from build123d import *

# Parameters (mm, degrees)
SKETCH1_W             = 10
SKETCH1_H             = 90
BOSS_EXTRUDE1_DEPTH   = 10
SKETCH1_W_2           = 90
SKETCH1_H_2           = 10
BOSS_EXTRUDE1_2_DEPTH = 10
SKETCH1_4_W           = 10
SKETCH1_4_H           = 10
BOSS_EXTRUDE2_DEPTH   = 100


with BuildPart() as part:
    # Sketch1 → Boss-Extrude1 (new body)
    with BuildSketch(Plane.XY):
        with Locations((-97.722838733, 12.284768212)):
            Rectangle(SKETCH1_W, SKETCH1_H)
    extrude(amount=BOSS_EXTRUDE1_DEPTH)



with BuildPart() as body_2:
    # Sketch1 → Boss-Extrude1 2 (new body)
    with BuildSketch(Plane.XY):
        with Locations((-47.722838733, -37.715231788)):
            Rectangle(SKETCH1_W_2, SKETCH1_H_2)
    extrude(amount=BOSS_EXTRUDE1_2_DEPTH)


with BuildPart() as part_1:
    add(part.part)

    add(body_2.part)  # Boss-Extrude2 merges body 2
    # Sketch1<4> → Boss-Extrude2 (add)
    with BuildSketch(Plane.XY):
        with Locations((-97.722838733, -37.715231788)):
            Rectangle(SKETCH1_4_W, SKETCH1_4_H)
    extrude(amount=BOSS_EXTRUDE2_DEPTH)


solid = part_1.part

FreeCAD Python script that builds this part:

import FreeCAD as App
import Part
import Sketcher


def add_polygon(sketch, points):
    """Adds a closed chain of lines whose ends are joined by coincident constraints."""
    first, n = sketch.GeometryCount, len(points)
    for a, b in zip(points, points[1:] + points[:1]):
        sketch.addGeometry(Part.LineSegment(App.Vector(*a, 0), App.Vector(*b, 0)), False)
    for i in range(n):
        sketch.addConstraint(Sketcher.Constraint("Coincident", first + i, 2, first + (i + 1) % n, 1))

doc = App.newDocument("Part")
body = doc.addObject("PartDesign::Body", "Body")

# Sketch on XY plane
sketch1 = doc.addObject("Sketcher::SketchObject", "Sketch")
body.addObject(sketch1)
sketch1.AttachmentSupport = (doc.XY_Plane, [""])
sketch1.MapMode = "FlatFace"
add_polygon(sketch1, [(-103, 57), (-103, -33), (-93, -33), (-93, 57)])  # lines 0-3
sketch1.addConstraint([
    Sketcher.Constraint("Vertical", 0),
    Sketcher.Constraint("Horizontal", 1),
    Sketcher.Constraint("Vertical", 2),
    Sketcher.Constraint("Horizontal", 3),
    Sketcher.Constraint("DistanceX", 1, 1, 1, 2, 10.0),
    Sketcher.Constraint("DistanceY", 0, 2, 0, 1, 90.0),
    Sketcher.Constraint("DistanceX", 0, 2, -1, 1, 102.722839),
    Sketcher.Constraint("DistanceY", 0, 2, -1, 1, 32.715232),
])
pad1 = doc.addObject("PartDesign::Pad", "Pad")
body.addObject(pad1)
pad1.Profile = sketch1
pad1.Length = 10
body2 = doc.addObject("PartDesign::Body", "Body001")

# Sketch on XY plane
sketch2 = doc.addObject("Sketcher::SketchObject", "Sketch001")
body2.addObject(sketch2)
sketch2.AttachmentSupport = (doc.getObject("XY_Plane001"), [""])
sketch2.MapMode = "FlatFace"
add_polygon(sketch2, [(-93, -33), (-93, -43), (-3, -43), (-3, -33)])  # lines 0-3
sketch2.addConstraint([
    Sketcher.Constraint("Vertical", 0),
    Sketcher.Constraint("Horizontal", 1),
    Sketcher.Constraint("Vertical", 2),
    Sketcher.Constraint("Horizontal", 3),
    Sketcher.Constraint("DistanceX", 1, 1, 1, 2, 90.0),
    Sketcher.Constraint("DistanceY", 0, 2, 0, 1, 10.0),
    Sketcher.Constraint("DistanceX", 0, 2, -1, 1, 92.722839),
    Sketcher.Constraint("DistanceY", 0, 2, -1, 1, 42.715232),
])
pad2 = doc.addObject("PartDesign::Pad", "Pad001")
body2.addObject(pad2)
pad2.Profile = sketch2
pad2.Length = 10
body.AllowCompound = True
doc.recompute()

boolean = doc.addObject("PartDesign::Boolean", "Boolean")
body.addObject(boolean)
boolean.Type = "Fuse"
boolean.addObjects([body2])

# Sketch on XY plane
sketch3 = doc.addObject("Sketcher::SketchObject", "Sketch002")
body.addObject(sketch3)
sketch3.AttachmentSupport = (doc.XY_Plane, [""])
sketch3.MapMode = "FlatFace"
add_polygon(sketch3, [(-103, -33), (-103, -43), (-93, -43), (-93, -33)])  # lines 0-3
sketch3.addConstraint([
    Sketcher.Constraint("Vertical", 0),
    Sketcher.Constraint("Horizontal", 1),
    Sketcher.Constraint("Vertical", 2),
    Sketcher.Constraint("Horizontal", 3),
    Sketcher.Constraint("Equal", 3, 0),
    Sketcher.Constraint("DistanceX", 1, 1, 1, 2, 10.0),
    Sketcher.Constraint("DistanceX", 0, 2, -1, 1, 102.722839),
    Sketcher.Constraint("DistanceY", 0, 2, -1, 1, 42.715232),
])
pad3 = doc.addObject("PartDesign::Pad", "Pad002")
body.addObject(pad3)
pad3.Profile = sketch3
pad3.Length = 100

doc.recompute()
